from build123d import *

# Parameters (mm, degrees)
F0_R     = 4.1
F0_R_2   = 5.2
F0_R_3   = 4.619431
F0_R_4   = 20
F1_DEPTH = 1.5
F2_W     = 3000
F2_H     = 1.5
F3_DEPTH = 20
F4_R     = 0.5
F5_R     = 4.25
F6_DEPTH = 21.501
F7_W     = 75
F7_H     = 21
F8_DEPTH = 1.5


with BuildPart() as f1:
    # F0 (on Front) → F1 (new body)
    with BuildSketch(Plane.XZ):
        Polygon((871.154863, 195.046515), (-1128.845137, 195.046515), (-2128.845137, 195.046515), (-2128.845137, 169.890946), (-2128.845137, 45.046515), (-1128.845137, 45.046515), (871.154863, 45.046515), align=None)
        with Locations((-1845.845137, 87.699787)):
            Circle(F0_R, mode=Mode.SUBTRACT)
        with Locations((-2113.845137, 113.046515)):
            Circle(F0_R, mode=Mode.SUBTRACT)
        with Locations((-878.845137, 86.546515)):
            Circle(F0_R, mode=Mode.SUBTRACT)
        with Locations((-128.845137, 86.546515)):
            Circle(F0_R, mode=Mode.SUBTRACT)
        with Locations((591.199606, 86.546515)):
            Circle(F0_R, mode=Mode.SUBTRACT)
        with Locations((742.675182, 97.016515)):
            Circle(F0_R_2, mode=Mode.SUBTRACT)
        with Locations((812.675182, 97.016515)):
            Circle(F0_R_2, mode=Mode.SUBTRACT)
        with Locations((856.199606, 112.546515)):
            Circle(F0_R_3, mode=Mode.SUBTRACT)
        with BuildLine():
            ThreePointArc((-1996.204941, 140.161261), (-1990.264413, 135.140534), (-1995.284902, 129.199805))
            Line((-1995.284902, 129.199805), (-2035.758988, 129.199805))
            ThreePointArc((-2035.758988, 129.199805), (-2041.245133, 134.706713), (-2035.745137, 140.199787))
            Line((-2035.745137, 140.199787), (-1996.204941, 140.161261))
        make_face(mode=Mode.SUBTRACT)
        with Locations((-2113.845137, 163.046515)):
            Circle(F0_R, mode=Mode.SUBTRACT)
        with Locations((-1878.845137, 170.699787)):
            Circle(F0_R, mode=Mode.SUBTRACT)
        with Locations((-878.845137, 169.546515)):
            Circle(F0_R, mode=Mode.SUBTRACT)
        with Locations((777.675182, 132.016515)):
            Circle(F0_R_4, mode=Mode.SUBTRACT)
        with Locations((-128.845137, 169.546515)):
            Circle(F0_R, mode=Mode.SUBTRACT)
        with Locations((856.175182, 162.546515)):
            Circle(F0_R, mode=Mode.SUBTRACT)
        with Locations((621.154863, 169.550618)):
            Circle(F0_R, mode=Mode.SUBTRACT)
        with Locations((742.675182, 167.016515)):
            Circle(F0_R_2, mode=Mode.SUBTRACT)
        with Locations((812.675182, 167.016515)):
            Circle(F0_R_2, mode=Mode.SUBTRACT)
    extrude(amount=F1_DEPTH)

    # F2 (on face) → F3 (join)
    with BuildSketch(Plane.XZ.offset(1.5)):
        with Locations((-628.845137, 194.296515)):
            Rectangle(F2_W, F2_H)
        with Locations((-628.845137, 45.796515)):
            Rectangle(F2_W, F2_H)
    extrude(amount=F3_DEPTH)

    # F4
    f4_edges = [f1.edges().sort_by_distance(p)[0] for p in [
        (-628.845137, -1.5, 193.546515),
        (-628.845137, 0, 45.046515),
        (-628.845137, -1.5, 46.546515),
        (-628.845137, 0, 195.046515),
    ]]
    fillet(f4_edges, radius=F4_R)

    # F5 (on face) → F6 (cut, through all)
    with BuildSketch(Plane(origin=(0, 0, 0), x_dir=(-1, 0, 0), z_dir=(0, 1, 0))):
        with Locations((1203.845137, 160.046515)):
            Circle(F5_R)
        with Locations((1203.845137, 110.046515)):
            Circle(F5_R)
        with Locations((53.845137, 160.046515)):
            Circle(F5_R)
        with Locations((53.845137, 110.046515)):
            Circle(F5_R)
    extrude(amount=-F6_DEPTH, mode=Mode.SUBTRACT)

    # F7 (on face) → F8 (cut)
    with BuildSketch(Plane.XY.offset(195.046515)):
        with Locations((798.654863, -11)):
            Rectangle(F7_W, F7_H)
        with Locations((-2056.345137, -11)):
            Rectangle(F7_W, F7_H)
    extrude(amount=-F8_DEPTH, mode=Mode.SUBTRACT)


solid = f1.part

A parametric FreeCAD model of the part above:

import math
import FreeCAD as App
import Part
import Sketcher
Q = App.Units.Quantity


def edges_at(feature, points):
    """Names of the edges that pass closest to the given points."""
    edges = feature.Shape.Edges
    near = lambda p: min(range(len(edges)), key=lambda i: edges[i].distToShape(Part.Vertex(*p))[0])
    return sorted({f"Edge{near(p) + 1}" for p in points})

doc = App.newDocument("Part")
params = doc.addObject("Spreadsheet::Sheet", "Params")
for row, (alias, value) in enumerate([
    ("sketch1_diameter", "40 mm"),
    ("sketch1_diameter2", "8.2 mm"),
    ("sketch1_diameter3", "10.4 mm"),
    ("sketch1_radius", "5.5 mm"),
    ("sketch1_width", "3000 mm"),
    ("pad1_length", "1.5 mm"),
    ("sketch2_width", "3000 mm"),
    ("sketch2_height", "1.5 mm"),
    ("pad2_length", "20 mm"),
    ("fillet_radius", "0.5 mm"),
    ("sketch3_diameter", "8.5 mm"),
    ("sketch4_width", "75 mm"),
    ("sketch4_height", "21 mm"),
    ("pocket2_length", "1.5 mm"),
], start=1):
    params.set(f"A{row}", alias)
    params.set(f"B{row}", "=" + value)
    params.setAlias(f"B{row}", alias)

body = doc.addObject("PartDesign::Body", "Body")

# Sketch on XZ plane
sketch1 = body.newObject("Sketcher::SketchObject", "Sketch")
sketch1.AttachmentSupport = (doc.getObject("XZ_Plane"), [""])
sketch1.MapMode = "FlatFace"
sketch1.addGeometry([
    Part.LineSegment(App.Vector(871.154863, 195.046515, 0), App.Vector(-2128.845137, 195.046515, 0)),  # 0
    Part.LineSegment(App.Vector(-2128.845137, 195.046515, 0), App.Vector(-2128.845137, 45.046515, 0)),  # 1
    Part.LineSegment(App.Vector(-2128.845137, 45.046515, 0), App.Vector(871.154863, 45.046515, 0)),  # 2
    Part.LineSegment(App.Vector(871.154863, 45.046515, 0), App.Vector(871.154863, 195.046515, 0)),  # 3
    Part.Circle(App.Vector(-1845.845137, 87.699787, 0), App.Vector(0, 0, 1), 4.1),  # 4
    Part.Circle(App.Vector(-878.845137, 86.546515, 0), App.Vector(0, 0, 1), 4.1),  # 5
    Part.Circle(App.Vector(-2113.845137, 113.046515, 0), App.Vector(0, 0, 1), 4.1),  # 6
    Part.Circle(App.Vector(-128.845137, 86.546515, 0), App.Vector(0, 0, 1), 4.1),  # 7
    Part.Circle(App.Vector(591.199606, 86.546515, 0), App.Vector(0, 0, 1), 4.1),  # 8
    Part.Circle(App.Vector(742.675182, 97.016515, 0), App.Vector(0, 0, 1), 5.2),  # 9
    Part.Circle(App.Vector(812.675182, 97.016515, 0), App.Vector(0, 0, 1), 5.2),  # 10
    Part.Circle(App.Vector(856.199606, 112.546515, 0), App.Vector(0, 0, 1), 4.619431),  # 11
    Part.LineSegment(App.Vector(-2035.745137, 140.199787, 0), App.Vector(-1996.204941, 140.161261, 0)),  # 12
    Part.ArcOfCircle(Part.Circle(App.Vector(-1995.745141, 134.680515, 0), App.Vector(0, 0, 1), 5.5), math.radians(-85.199886), math.radians(94.795524)),  # 13
    Part.LineSegment(App.Vector(-1995.284902, 129.199805, 0), App.Vector(-2035.758988, 129.199805, 0)),  # 14
    Part.ArcOfCircle(Part.Circle(App.Vector(-2035.745138, 134.699787, 0), App.Vector(0, 0, 1), 5.5), math.radians(89.999993), math.radians(269.855715)),  # 15
    Part.Circle(App.Vector(-2113.845137, 163.046515, 0), App.Vector(0, 0, 1), 4.1),  # 16
    Part.Circle(App.Vector(-1878.845137, 170.699787, 0), App.Vector(0, 0, 1), 4.1),  # 17
    Part.Circle(App.Vector(-878.845137, 169.546515, 0), App.Vector(0, 0, 1), 4.1),  # 18
    Part.Circle(App.Vector(777.675182, 132.016515, 0), App.Vector(0, 0, 1), 20),  # 19
    Part.Circle(App.Vector(-128.845137, 169.546515, 0), App.Vector(0, 0, 1), 4.1),  # 20
    Part.Circle(App.Vector(856.175182, 162.546515, 0), App.Vector(0, 0, 1), 4.1),  # 21
    Part.Circle(App.Vector(742.675182, 167.016515, 0), App.Vector(0, 0, 1), 5.2),  # 22
    Part.Circle(App.Vector(812.675182, 167.016515, 0), App.Vector(0, 0, 1), 5.2),  # 23
    Part.Circle(App.Vector(621.154863, 169.550618, 0), App.Vector(0, 0, 1), 4.1),  # 24
], False)
sketch1.addConstraint([
    Sketcher.Constraint("Coincident", 0, 2, 1, 1),
    Sketcher.Constraint("Coincident", 1, 2, 2, 1),
    Sketcher.Constraint("Coincident", 2, 2, 3, 1),
    Sketcher.Constraint("Coincident", 3, 2, 0, 1),
    Sketcher.Constraint("Coincident", 12, 2, 13, 2),
    Sketcher.Constraint("Coincident", 13, 1, 14, 1),
    Sketcher.Constraint("Coincident", 14, 2, 15, 2),
    Sketcher.Constraint("Coincident", 15, 1, 12, 1),
    Sketcher.Constraint("Horizontal", 0),
    Sketcher.Constraint("Vertical", 1),
    Sketcher.Constraint("Horizontal", 2),
    Sketcher.Constraint("Vertical", 3),
    Sketcher.Constraint("Horizontal", 14),
    Sketcher.Constraint("Equal", 4, 5),
    Sketcher.Constraint("Equal", 5, 6),
    Sketcher.Constraint("Equal", 6, 7),
    Sketcher.Constraint("Equal", 7, 8),
    Sketcher.Constraint("Equal", 9, 10),
    Sketcher.Constraint("Equal", 13, 15),
    Sketcher.Constraint("Equal", 8, 16),
    Sketcher.Constraint("Equal", 16, 17),
    Sketcher.Constraint("Equal", 17, 18),
    Sketcher.Constraint("Equal", 18, 20),
    Sketcher.Constraint("Equal", 20, 21),
    Sketcher.Constraint("Equal", 10, 22),
    Sketcher.Constraint("Equal", 22, 23),
    Sketcher.Constraint("Equal", 21, 24),
    Sketcher.Constraint("Horizontal", 5, 3, 7, 3),
    Sketcher.Constraint("Horizontal", 7, 3, 8, 3),
    Sketcher.Constraint("Horizontal", 9, 3, 10, 3),
    Sketcher.Constraint("Horizontal", 18, 3, 20, 3),
    Sketcher.Constraint("Horizontal", 22, 3, 23, 3),
    Sketcher.Constraint("Vertical", 6, 3, 16, 3),
    Sketcher.Constraint("Vertical", 5, 3, 18, 3),
    Sketcher.Constraint("Vertical", 7, 3, 20, 3),
    Sketcher.Constraint("Vertical", 9, 3, 22, 3),
    Sketcher.Constraint("Vertical", 10, 3, 23, 3),
    Sketcher.Constraint("Diameter", 19, Q("40 mm")),
    Sketcher.Constraint("Diameter", 4, Q("8.2 mm")),
    Sketcher.Constraint("Diameter", 9, Q("10.4 mm")),
    Sketcher.Constraint("Radius", 13, Q("5.5 mm")),
    Sketcher.Constraint("DistanceX", 0, 2, 0, 1, Q("3000 mm")),
    Sketcher.Constraint("DistanceY", 1, 2, 1, 1, Q("150 mm")),
    Sketcher.Constraint("DistanceX", 4, 3, 5, 3, Q("967 mm")),
    Sketcher.Constraint("DistanceX", 6, 3, 4, 3, Q("268 mm")),
    Sketcher.Constraint("DistanceX", 5, 3, 7, 3, Q("750 mm")),
    Sketcher.Constraint("DistanceX", 9, 3, 10, 3, Q("70 mm")),
    Sketcher.Constraint("DistanceX", 8, 3, 11, 3, Q("265 mm")),
    Sketcher.Constraint("DistanceY", 8, 3, 11, 3, Q("26 mm")),
    Sketcher.Constraint("DistanceY", 4, 3, 15, 3, Q("47 mm")),
    Sketcher.Constraint("DistanceY", 6, 3, 16, 3, Q("50 mm")),
    Sketcher.Constraint("DistanceX", 17, 3, 4, 3, Q("33 mm")),
    Sketcher.Constraint("DistanceY", 4, 3, 17, 3, Q("83 mm")),
    Sketcher.Constraint("DistanceY", 5, 3, 18, 3, Q("83 mm")),
    Sketcher.Constraint("DistanceX", 9, 3, 19, 3, Q("35 mm")),
    Sketcher.Constraint("DistanceY", 9, 3, 19, 3, Q("35 mm")),
    Sketcher.Constraint("DistanceY", 11, 3, 21, 3, Q("50 mm")),
    Sketcher.Constraint("DistanceY", 19, 3, 22, 3, Q("35 mm")),
    Sketcher.Constraint("DistanceX", 0, 2, 16, 3, Q("15 mm")),
    Sketcher.Constraint("DistanceY", 16, 3, 0, 2, Q("32 mm")),
    Sketcher.Constraint("DistanceY", 5, 3, 6, 3, Q("26.5 mm")),
    Sketcher.Constraint("DistanceX", 6, 3, 15, 3, Q("78.099999 mm")),
    Sketcher.Constraint("DistanceX", 10, 3, 21, 3, Q("43.5 mm")),
    Sketcher.Constraint("Diameter", 11, Q("9.238862 mm")),
    Sketcher.Constraint("DistanceY", 8, 3, 9, 3, Q("10.47 mm")),
    Sketcher.Constraint("DistanceY", 6, 3, 13, 3, Q("21.634 mm")),
    Sketcher.Constraint("DistanceX", 13, 1, -1, 1, Q("1995.284902 mm")),
    Sketcher.Constraint("DistanceX", 12, 2, 13, 3, Q("0.4598 mm")),
    Sketcher.Constraint("DistanceX", 14, 2, 14, 1, Q("40.474086 mm")),
    Sketcher.Constraint("DistanceX", -1, 1, 9, 3, Q("742.675182 mm")),
    Sketcher.Constraint("DistanceX", 13, 3, -1, 1, Q("1995.745141 mm")),
    Sketcher.Constraint("DistanceY", -1, 1, 12, 2, Q("140.161261 mm")),
    Sketcher.Constraint("DistanceX", 7, 3, 9, 3, Q("871.520319 mm")),
    Sketcher.Constraint("DistanceX", 24, 3, 22, 3, Q("121.520319 mm")),
    Sketcher.Constraint("DistanceX", 14, 2, 15, 1, Q("0.013851 mm")),
    Sketcher.Constraint("DistanceX", -1, 1, 8, 3, Q("591.199606 mm")),
    Sketcher.Constraint("DistanceY", -1, 1, 24, 3, Q("169.550618 mm")),
])
sketch1.setExpression("Constraints[37]", "Params.sketch1_diameter")
sketch1.setExpression("Constraints[38]", "Params.sketch1_diameter2")
sketch1.setExpression("Constraints[39]", "Params.sketch1_diameter3")
sketch1.setExpression("Constraints[40]", "Params.sketch1_radius")
sketch1.setExpression("Constraints[41]", "Params.sketch1_width")
pad1 = body.newObject("PartDesign::Pad", "Pad")
pad1.Profile = sketch1
pad1.setExpression("Length", "Params.pad1_length")

# Sketch on XZ plane
sketch2 = body.newObject("Sketcher::SketchObject", "Sketch001")
sketch2.AttachmentSupport = (doc.getObject("XZ_Plane"), [""])
sketch2.MapMode = "FlatFace"
sketch2.AttachmentOffset = App.Placement(App.Vector(0, 0, 1.5), App.Rotation())
sketch2.addGeometry([
    Part.LineSegment(App.Vector(-2128.845137, 195.046515, 0), App.Vector(-2128.845137, 193.546515, 0)),  # 0
    Part.LineSegment(App.Vector(-2128.845137, 193.546515, 0), App.Vector(871.154863, 193.546515, 0)),  # 1
    Part.LineSegment(App.Vector(871.154863, 193.546515, 0), App.Vector(871.154863, 195.046515, 0)),  # 2
    Part.LineSegment(App.Vector(871.154863, 195.046515, 0), App.Vector(-2128.845137, 195.046515, 0)),  # 3
    Part.LineSegment(App.Vector(-2128.845137, 46.546515, 0), App.Vector(-2128.845137, 45.046515, 0)),  # 4
    Part.LineSegment(App.Vector(-2128.845137, 45.046515, 0), App.Vector(871.154863, 45.046515, 0)),  # 5
    Part.LineSegment(App.Vector(871.154863, 45.046515, 0), App.Vector(871.154863, 46.546515, 0)),  # 6
    Part.LineSegment(App.Vector(871.154863, 46.546515, 0), App.Vector(-2128.845137, 46.546515, 0)),  # 7
], False)
sketch2.addConstraint([
    Sketcher.Constraint("Coincident", 0, 2, 1, 1),
    Sketcher.Constraint("Coincident", 1, 2, 2, 1),
    Sketcher.Constraint("Coincident", 2, 2, 3, 1),
    Sketcher.Constraint("Coincident", 3, 2, 0, 1),
    Sketcher.Constraint("Coincident", 4, 2, 5, 1),
    Sketcher.Constraint("Coincident", 5, 2, 6, 1),
    Sketcher.Constraint("Coincident", 6, 2, 7, 1),
    Sketcher.Constraint("Coincident", 7, 2, 4, 1),
    Sketcher.Constraint("Vertical", 0),
    Sketcher.Constraint("Horizontal", 1),
    Sketcher.Constraint("Vertical", 2),
    Sketcher.Constraint("Horizontal", 3),
    Sketcher.Constraint("Vertical", 4),
    Sketcher.Constraint("Horizontal", 5),
    Sketcher.Constraint("Vertical", 6),
    Sketcher.Constraint("Horizontal", 7),
    Sketcher.Constraint("Vertical", 3, 2, 4, 2),
    Sketcher.Constraint("Vertical", 2, 2, 5, 2),
    Sketcher.Constraint("Equal", 2, 4),
    Sketcher.Constraint("DistanceX", 1, 1, 1, 2, Q("3000 mm")),
    Sketcher.Constraint("DistanceY", 0, 2, 0, 1, Q("1.5 mm")),
    Sketcher.Constraint("DistanceY", 4, 2, 3, 2, Q("150 mm")),
    Sketcher.Constraint("DistanceX", 0, 2, -1, 1, Q("2128.845137 mm")),
    Sketcher.Constraint("DistanceY", -1, 1, 0, 2, Q("193.546515 mm")),
])
sketch2.setExpression("Constraints[19]", "Params.sketch2_width")
sketch2.setExpression("Constraints[20]", "Params.sketch2_height")
pad2 = body.newObject("PartDesign::Pad", "Pad001")
pad2.Profile = sketch2
pad2.setExpression("Length", "Params.pad2_length")
doc.recompute()

fillet = body.newObject("PartDesign::Fillet", "Fillet")
fillet.Base = (pad2, edges_at(pad2, [
    (-628.845, -1.5, 193.547),
    (-628.845, 0, 45.047),
    (-628.845, -1.5, 46.547),
    (-628.845, 0, 195.047),
]))
fillet.setExpression("Radius", "Params.fillet_radius")

# Sketch on XZ plane
sketch3 = body.newObject("Sketcher::SketchObject", "Sketch002")
sketch3.AttachmentSupport = (doc.getObject("XZ_Plane"), [""])
sketch3.MapMode = "FlatFace"
sketch3.addGeometry([
    Part.Circle(App.Vector(-1203.845137, 160.046515, 0), App.Vector(0, 0, 1), 4.25),
    Part.Circle(App.Vector(-1203.845137, 110.046515, 0), App.Vector(0, 0, 1), 4.25),
    Part.Circle(App.Vector(-53.845137, 160.046515, 0), App.Vector(0, 0, 1), 4.25),
    Part.Circle(App.Vector(-53.845137, 110.046515, 0), App.Vector(0, 0, 1), 4.25),
], False)
sketch3.addConstraint([
    Sketcher.Constraint("Equal", 0, 1),
    Sketcher.Constraint("Equal", 1, 2),
    Sketcher.Constraint("Equal", 2, 3),
    Sketcher.Constraint("Horizontal", 0, 3, 2, 3),
    Sketcher.Constraint("Horizontal", 1, 3, 3, 3),
    Sketcher.Constraint("Vertical", 0, 3, 1, 3),
    Sketcher.Constraint("Vertical", 2, 3, 3, 3),
    Sketcher.Constraint("Diameter", 0, Q("8.5 mm")),
    Sketcher.Constraint("DistanceY", 1, 3, 0, 3, Q("50 mm")),
    Sketcher.Constraint("DistanceX", 0, 3, 2, 3, Q("1150 mm")),
    Sketcher.Constraint("DistanceX", 0, 3, -1, 1, Q("1203.845137 mm")),
    Sketcher.Constraint("DistanceY", -1, 1, 0, 3, Q("160.046515 mm")),
])
sketch3.setExpression("Constraints[7]", "Params.sketch3_diameter")
pocket1 = body.newObject("PartDesign::Pocket", "Pocket")
pocket1.Profile = sketch3
pocket1.Type = "ThroughAll"
pocket1.Reversed = True

# Sketch on XY plane
sketch4 = body.newObject("Sketcher::SketchObject", "Sketch003")
sketch4.AttachmentSupport = (doc.getObject("XY_Plane"), [""])
sketch4.MapMode = "FlatFace"
sketch4.AttachmentOffset = App.Placement(App.Vector(0, 0, 195.046515), App.Rotation())
sketch4.addGeometry([
    Part.LineSegment(App.Vector(761.154863, -0.5, 0), App.Vector(761.154863, -21.5, 0)),  # 0
    Part.LineSegment(App.Vector(761.154863, -21.5, 0), App.Vector(836.154863, -21.5, 0)),  # 1
    Part.LineSegment(App.Vector(836.154863, -21.5, 0), App.Vector(836.154863, -0.5, 0)),  # 2
    Part.LineSegment(App.Vector(836.154863, -0.5, 0), App.Vector(761.154863, -0.5, 0)),  # 3
    Part.LineSegment(App.Vector(-2093.845137, -0.5, 0), App.Vector(-2093.845137, -21.5, 0)),  # 4
    Part.LineSegment(App.Vector(-2093.845137, -21.5, 0), App.Vector(-2018.845137, -21.5, 0)),  # 5
    Part.LineSegment(App.Vector(-2018.845137, -21.5, 0), App.Vector(-2018.845137, -0.5, 0)),  # 6
    Part.LineSegment(App.Vector(-2018.845137, -0.5, 0), App.Vector(-2093.845137, -0.5, 0)),  # 7
], False)
sketch4.addConstraint([
    Sketcher.Constraint("Coincident", 0, 2, 1, 1),
    Sketcher.Constraint("Coincident", 1, 2, 2, 1),
    Sketcher.Constraint("Coincident", 2, 2, 3, 1),
    Sketcher.Constraint("Coincident", 3, 2, 0, 1),
    Sketcher.Constraint("Coincident", 4, 2, 5, 1),
    Sketcher.Constraint("Coincident", 5, 2, 6, 1),
    Sketcher.Constraint("Coincident", 6, 2, 7, 1),
    Sketcher.Constraint("Coincident", 7, 2, 4, 1),
    Sketcher.Constraint("Vertical", 0),
    Sketcher.Constraint("Horizontal", 1),
    Sketcher.Constraint("Vertical", 2),
    Sketcher.Constraint("Horizontal", 3),
    Sketcher.Constraint("Vertical", 4),
    Sketcher.Constraint("Horizontal", 5),
    Sketcher.Constraint("Vertical", 6),
    Sketcher.Constraint("Horizontal", 7),
    Sketcher.Constraint("Horizontal", 1, 2, 4, 2),
    Sketcher.Constraint("Horizontal", 3, 2, 6, 2),
    Sketcher.Constraint("Equal", 3, 5),
    Sketcher.Constraint("DistanceX", 1, 1, 1, 2, Q("75 mm")),
    Sketcher.Constraint("DistanceY", 0, 2, 0, 1, Q("21 mm")),
    Sketcher.Constraint("DistanceX", 4, 2, 0, 2, Q("2855 mm")),
    Sketcher.Constraint("DistanceY", 0, 2, -1, 1, Q("21.5 mm")),
    Sketcher.Constraint("DistanceX", -1, 1, 0, 2, Q("761.154863 mm")),
])
sketch4.setExpression("Constraints[19]", "Params.sketch4_width")
sketch4.setExpression("Constraints[20]", "Params.sketch4_height")
pocket2 = body.newObject("PartDesign::Pocket", "Pocket001")
pocket2.Profile = sketch4
pocket2.setExpression("Length", "Params.pocket2_length")

doc.recompute()
